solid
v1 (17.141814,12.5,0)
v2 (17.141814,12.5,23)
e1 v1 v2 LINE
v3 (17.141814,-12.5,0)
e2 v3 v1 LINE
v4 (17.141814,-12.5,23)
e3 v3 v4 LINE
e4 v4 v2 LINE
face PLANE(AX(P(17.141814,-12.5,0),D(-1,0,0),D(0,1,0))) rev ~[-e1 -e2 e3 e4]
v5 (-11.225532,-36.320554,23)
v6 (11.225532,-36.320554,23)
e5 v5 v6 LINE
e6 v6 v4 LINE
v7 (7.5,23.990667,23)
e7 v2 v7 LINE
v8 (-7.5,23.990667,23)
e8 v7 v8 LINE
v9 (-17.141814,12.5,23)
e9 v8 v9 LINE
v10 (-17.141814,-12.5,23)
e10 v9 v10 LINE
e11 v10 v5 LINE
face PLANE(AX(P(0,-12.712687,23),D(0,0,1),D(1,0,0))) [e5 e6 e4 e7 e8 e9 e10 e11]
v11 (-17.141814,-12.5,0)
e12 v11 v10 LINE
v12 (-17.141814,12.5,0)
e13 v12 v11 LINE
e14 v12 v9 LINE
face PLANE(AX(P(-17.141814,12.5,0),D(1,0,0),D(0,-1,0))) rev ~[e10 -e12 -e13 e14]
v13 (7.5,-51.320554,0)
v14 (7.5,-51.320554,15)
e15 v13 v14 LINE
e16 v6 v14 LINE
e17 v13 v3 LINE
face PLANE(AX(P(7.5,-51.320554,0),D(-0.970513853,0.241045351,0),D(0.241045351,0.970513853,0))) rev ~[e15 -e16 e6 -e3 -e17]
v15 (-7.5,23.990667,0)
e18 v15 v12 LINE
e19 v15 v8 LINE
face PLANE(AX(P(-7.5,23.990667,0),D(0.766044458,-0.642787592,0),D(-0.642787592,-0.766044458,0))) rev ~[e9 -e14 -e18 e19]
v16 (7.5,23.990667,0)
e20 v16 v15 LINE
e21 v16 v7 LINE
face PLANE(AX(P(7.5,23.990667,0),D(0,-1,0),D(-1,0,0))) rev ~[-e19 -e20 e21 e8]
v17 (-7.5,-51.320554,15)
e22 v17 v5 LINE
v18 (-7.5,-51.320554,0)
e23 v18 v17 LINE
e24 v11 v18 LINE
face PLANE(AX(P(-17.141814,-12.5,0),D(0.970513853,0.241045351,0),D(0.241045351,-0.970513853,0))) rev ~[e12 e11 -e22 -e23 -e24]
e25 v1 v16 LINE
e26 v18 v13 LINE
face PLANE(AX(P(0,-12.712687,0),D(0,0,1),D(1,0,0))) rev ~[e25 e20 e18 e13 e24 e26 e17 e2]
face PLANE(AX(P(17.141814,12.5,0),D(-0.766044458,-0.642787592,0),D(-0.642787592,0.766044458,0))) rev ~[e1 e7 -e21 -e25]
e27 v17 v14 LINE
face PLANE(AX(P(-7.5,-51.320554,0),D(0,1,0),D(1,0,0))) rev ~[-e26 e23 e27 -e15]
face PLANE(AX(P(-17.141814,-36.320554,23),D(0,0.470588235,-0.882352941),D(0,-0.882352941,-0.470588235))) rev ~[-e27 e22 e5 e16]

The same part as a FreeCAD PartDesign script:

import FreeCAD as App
import Part
import Sketcher
from FreeCAD import Vector
Q = App.Units.Quantity

doc = App.newDocument("Part")
params = doc.addObject("Spreadsheet::Sheet", "Params")
for row, (alias, value) in enumerate([
    ("sketch1_width", "15 mm"),
    ("sketch1_height", "25 mm"),
    ("sketch1_length", "15 mm"),
    ("sketch1_length2", "40 mm"),
    ("pad1_length", "23 mm"),
    ("sketch2_width", "15 mm"),
    ("sketch2_height", "8 mm"),
    ("pocket1_length", "35 mm"),
], start=1):
    params.set(f"A{row}", alias)
    params.set(f"B{row}", "=" + value)
    params.setAlias(f"B{row}", alias)

body = doc.addObject("PartDesign::Body", "Body")

# Sketch on XY plane
sketch1 = body.newObject("Sketcher::SketchObject", "Sketch")
sketch1.AttachmentSupport = (doc.getObject("XY_Plane"), [""])
sketch1.MapMode = "FlatFace"
sketch1.addGeometry([
    Part.LineSegment(Vector(8, 24, 0), Vector(-8, 24, 0)),  # 0
    Part.LineSegment(Vector(-8, 24, 0), Vector(-17, 12, 0)),  # 1
    Part.LineSegment(Vector(-17, 12, 0), Vector(-17, -12, 0)),  # 2
    Part.LineSegment(Vector(-17, -12, 0), Vector(-8, -51, 0)),  # 3
    Part.LineSegment(Vector(-8, -51, 0), Vector(8, -51, 0)),  # 4
    Part.LineSegment(Vector(8, -51, 0), Vector(17, -12, 0)),  # 5
    Part.LineSegment(Vector(17, -12, 0), Vector(17, 12, 0)),  # 6
    Part.LineSegment(Vector(17, 12, 0), Vector(8, 24, 0)),  # 7
], False)
sketch1.addConstraint([
    Sketcher.Constraint("Coincident", 0, 2, 1, 1),
    Sketcher.Constraint("Coincident", 1, 2, 2, 1),
    Sketcher.Constraint("Coincident", 2, 2, 3, 1),
    Sketcher.Constraint("Coincident", 3, 2, 4, 1),
    Sketcher.Constraint("Coincident", 4, 2, 5, 1),
    Sketcher.Constraint("Coincident", 5, 2, 6, 1),
    Sketcher.Constraint("Coincident", 6, 2, 7, 1),
    Sketcher.Constraint("Coincident", 7, 2, 0, 1),
    Sketcher.Constraint("Horizontal", 0),
    Sketcher.Constraint("Vertical", 2),
    Sketcher.Constraint("Horizontal", 4),
    Sketcher.Constraint("Vertical", 6),
    Sketcher.Constraint("Symmetric", 1, 2, 5, 2, -1, 1),
    Sketcher.Constraint("Horizontal", 2, 2, 5, 2),
    Sketcher.Constraint("Horizontal", 1, 2, 6, 2),
    Sketcher.Constraint("Vertical", 0, 2, 3, 2),
    Sketcher.Constraint("Vertical", 4, 2, 7, 2),
    Sketcher.Constraint("Equal", 3, 5),
    Sketcher.Constraint("DistanceX", 0, 2, 0, 1, Q("15 mm")),
    Sketcher.Constraint("DistanceY", 2, 2, 2, 1, Q("25 mm")),
    Sketcher.Constraint("Angle", 1, Q("-129.999999 deg")),
    Sketcher.Constraint("Distance", 1, Q("15 mm")),
    Sketcher.Constraint("Distance", 3, Q("40 mm")),
])
sketch1.setExpression("Constraints[18]", "Params.sketch1_width")
sketch1.setExpression("Constraints[19]", "Params.sketch1_height")
sketch1.setExpression("Constraints[21]", "Params.sketch1_length")
sketch1.setExpression("Constraints[22]", "Params.sketch1_length2")
pad1 = body.newObject("PartDesign::Pad", "Pad")
pad1.Profile = sketch1
pad1.setExpression("Length", "Params.pad1_length")

# Sketch on YZ plane
sketch2 = body.newObject("Sketcher::SketchObject", "Sketch001")
sketch2.AttachmentSupport = (doc.getObject("YZ_Plane"), [""])
sketch2.MapMode = "FlatFace"
sketch2.AttachmentOffset = App.Placement(Vector(0, 0, -17.141814), App.Rotation())
sketch2.addGeometry([
    Part.LineSegment(Vector(-36, 23, 0), Vector(-51, 15, 0)),
    Part.LineSegment(Vector(-51, 15, 0), Vector(-51, 23, 0)),
    Part.LineSegment(Vector(-51, 23, 0), Vector(-36, 23, 0)),
], False)
sketch2.addConstraint([
    Sketcher.Constraint("Coincident", 0, 2, 1, 1),
    Sketcher.Constraint("Coincident", 1, 2, 2, 1),
    Sketcher.Constraint("Coincident", 2, 2, 0, 1),
    Sketcher.Constraint("Vertical", 1),
    Sketcher.Constraint("Horizontal", 2),
    Sketcher.Constraint("DistanceX", 2, 1, 2, 2, Q("15 mm")),
    Sketcher.Constraint("DistanceY", 1, 1, 1, 2, Q("8 mm")),
    Sketcher.Constraint("DistanceY", -1, 1, 0, 2, Q("15 mm")),
    Sketcher.Constraint("DistanceX", 0, 2, -1, 1, Q("51.320554 mm")),
])
sketch2.setExpression("Constraints[5]", "Params.sketch2_width")
sketch2.setExpression("Constraints[6]", "Params.sketch2_height")
pocket1 = body.newObject("PartDesign::Pocket", "Pocket")
pocket1.Profile = sketch2
pocket1.setExpression("Length", "Params.pocket1_length")
pocket1.Reversed = True

doc.recompute()
